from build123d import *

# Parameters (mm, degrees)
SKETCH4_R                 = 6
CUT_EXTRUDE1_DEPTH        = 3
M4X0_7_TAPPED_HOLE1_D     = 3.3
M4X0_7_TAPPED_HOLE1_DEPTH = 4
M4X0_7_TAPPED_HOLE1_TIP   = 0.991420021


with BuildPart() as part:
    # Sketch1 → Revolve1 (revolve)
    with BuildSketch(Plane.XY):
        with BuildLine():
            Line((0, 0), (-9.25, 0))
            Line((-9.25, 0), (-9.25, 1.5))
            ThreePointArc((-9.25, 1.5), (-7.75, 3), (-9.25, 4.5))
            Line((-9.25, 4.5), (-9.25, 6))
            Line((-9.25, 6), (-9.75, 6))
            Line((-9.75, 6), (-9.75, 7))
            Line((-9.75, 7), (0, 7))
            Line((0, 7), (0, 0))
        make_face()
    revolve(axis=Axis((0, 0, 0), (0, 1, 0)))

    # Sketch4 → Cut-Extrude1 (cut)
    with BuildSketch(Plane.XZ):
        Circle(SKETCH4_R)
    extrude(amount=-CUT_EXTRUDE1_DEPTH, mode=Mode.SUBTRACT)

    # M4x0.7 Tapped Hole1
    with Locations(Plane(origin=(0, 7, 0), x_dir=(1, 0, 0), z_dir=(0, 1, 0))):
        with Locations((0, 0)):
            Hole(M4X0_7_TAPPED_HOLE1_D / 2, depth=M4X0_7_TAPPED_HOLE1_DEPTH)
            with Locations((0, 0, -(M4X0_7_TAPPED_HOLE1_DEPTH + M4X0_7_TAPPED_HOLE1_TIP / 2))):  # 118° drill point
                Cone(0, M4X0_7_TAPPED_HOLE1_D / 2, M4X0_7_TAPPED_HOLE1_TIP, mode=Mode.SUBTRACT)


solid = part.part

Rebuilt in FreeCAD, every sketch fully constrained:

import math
import FreeCAD as App
import Part
import Sketcher

doc = App.newDocument("Part")
params = doc.addObject("Spreadsheet::Sheet", "Params")
for row, (alias, value) in enumerate([
    ("sketch1_radius", "1.5 mm"),
    ("sketch1_height", "7 mm"),
    ("sketch1_height2", "1 mm"),
    ("sketch1_width", "0.5 mm"),
    ("sketch1_width2", "9.25 mm"),
    ("revolution_angle", "360 deg"),
    ("sketch2_diameter", "12 mm"),
    ("pocket1_length", "3 mm"),
    ("sketch3_diameter", "3.3 mm"),
    ("hole_diameter", "3.3 mm"),
    ("hole_depth", "4 mm"),
], start=1):
    params.set(f"A{row}", alias)
    params.set(f"B{row}", "=" + value)
    params.setAlias(f"B{row}", alias)

body = doc.addObject("PartDesign::Body", "Body")

# Sketch on XY plane
sketch1 = doc.addObject("Sketcher::SketchObject", "Sketch")
body.addObject(sketch1)
sketch1.AttachmentSupport = (doc.XY_Plane, [""])
sketch1.MapMode = "FlatFace"
sketch1.addGeometry(Part.LineSegment(App.Vector(-9.25, 0, 0), App.Vector(0, 0, 0)), False)
sketch1.addGeometry(Part.LineSegment(App.Vector(0, 0, 0), App.Vector(0, 7, 0)), False)
sketch1.addGeometry(Part.LineSegment(App.Vector(0, 7, 0), App.Vector(-9.75, 7, 0)), False)
sketch1.addGeometry(Part.LineSegment(App.Vector(-9.75, 7, 0), App.Vector(-9.75, 6, 0)), False)
sketch1.addGeometry(Part.LineSegment(App.Vector(-9.75, 6, 0), App.Vector(-9.25, 6, 0)), False)
sketch1.addGeometry(Part.LineSegment(App.Vector(-9.25, 6, 0), App.Vector(-9.25, 4.5, 0)), False)
sketch1.addGeometry(Part.ArcOfCircle(Part.Circle(App.Vector(-9.25, 3, 0), App.Vector(0, 0, 1), 1.5), math.radians(-90), math.radians(90)), False)
sketch1.addGeometry(Part.LineSegment(App.Vector(-9.25, 1.5, 0), App.Vector(-9.25, 0, 0)), False)
sketch1.addConstraint(Sketcher.Constraint("Coincident", 0, 2, 1, 1))
sketch1.addConstraint(Sketcher.Constraint("Coincident", 1, 2, 2, 1))
sketch1.addConstraint(Sketcher.Constraint("Coincident", 2, 2, 3, 1))
sketch1.addConstraint(Sketcher.Constraint("Coincident", 3, 2, 4, 1))
sketch1.addConstraint(Sketcher.Constraint("Coincident", 4, 2, 5, 1))
sketch1.addConstraint(Sketcher.Constraint("Coincident", 5, 2, 6, 2))
sketch1.addConstraint(Sketcher.Constraint("Coincident", 6, 1, 7, 1))
sketch1.addConstraint(Sketcher.Constraint("Coincident", 7, 2, 0, 1))
sketch1.addConstraint(Sketcher.Constraint("Horizontal", 0))
sketch1.addConstraint(Sketcher.Constraint("Vertical", 1))
sketch1.addConstraint(Sketcher.Constraint("Horizontal", 2))
sketch1.addConstraint(Sketcher.Constraint("Vertical", 3))
sketch1.addConstraint(Sketcher.Constraint("Horizontal", 4))
sketch1.addConstraint(Sketcher.Constraint("Vertical", 5))
sketch1.addConstraint(Sketcher.Constraint("Vertical", 7))
sketch1.addConstraint(Sketcher.Constraint("Coincident", 0, 2, -1, 1))
sketch1.addConstraint(Sketcher.Constraint("Vertical", 6, 3, 4, 2))
sketch1.addConstraint(Sketcher.Constraint("Vertical", 5, 2, 6, 1))
sketch1.addConstraint(Sketcher.Constraint("Equal", 5, 7))
sketch1.addConstraint(Sketcher.Constraint("Radius", 6, 1.5))
sketch1.addConstraint(Sketcher.Constraint("DistanceY", 1, 1, 1, 2, 7.0))
sketch1.addConstraint(Sketcher.Constraint("DistanceY", 3, 2, 3, 1, 1.0))
sketch1.addConstraint(Sketcher.Constraint("DistanceX", 4, 1, 4, 2, 0.5))
sketch1.addConstraint(Sketcher.Constraint("DistanceX", 0, 1, 0, 2, 9.25))
sketch1.setExpression("Constraints[19]", "Params.sketch1_radius")
sketch1.setExpression("Constraints[20]", "Params.sketch1_height")
sketch1.setExpression("Constraints[21]", "Params.sketch1_height2")
sketch1.setExpression("Constraints[22]", "Params.sketch1_width")
sketch1.setExpression("Constraints[23]", "Params.sketch1_width2")
revolution = doc.addObject("PartDesign::Revolution", "Revolution")
body.addObject(revolution)
revolution.Profile = sketch1
revolution.ReferenceAxis = (sketch1, ["V_Axis"])
revolution.setExpression("Angle", "Params.revolution_angle")

# Sketch on XZ plane
sketch2 = doc.addObject("Sketcher::SketchObject", "Sketch001")
body.addObject(sketch2)
sketch2.AttachmentSupport = (doc.XZ_Plane, [""])
sketch2.MapMode = "FlatFace"
sketch2.addGeometry(Part.Circle(App.Vector(0, 0, 0), App.Vector(0, 0, 1), 6), False)
sketch2.addConstraint(Sketcher.Constraint("Coincident", 0, 3, -1, 1))
sketch2.addConstraint(Sketcher.Constraint("Diameter", 0, 12.0))
sketch2.setExpression("Constraints[1]", "Params.sketch2_diameter")
pocket1 = doc.addObject("PartDesign::Pocket", "Pocket")
body.addObject(pocket1)
pocket1.Profile = sketch2
pocket1.setExpression("Length", "Params.pocket1_length")

# Sketch on XZ plane
sketch3 = doc.addObject("Sketcher::SketchObject", "Sketch002")
body.addObject(sketch3)
sketch3.AttachmentSupport = (doc.XZ_Plane, [""])
sketch3.MapMode = "FlatFace"
sketch3.AttachmentOffset = App.Placement(App.Vector(0, 0, -7), App.Rotation())
sketch3.addGeometry(Part.Circle(App.Vector(0, 0, 0), App.Vector(0, 0, 1), 1.65), False)
sketch3.addConstraint(Sketcher.Constraint("Coincident", 0, 3, -1, 1))
sketch3.addConstraint(Sketcher.Constraint("Diameter", 0, 3.3))
sketch3.setExpression("Constraints[1]", "Params.sketch3_diameter")
doc.recompute()
hole = doc.addObject("PartDesign::Hole", "Hole")
body.addObject(hole)
hole.Profile = sketch3
hole.ThreadType = "None"
hole.setExpression("Diameter", "Params.hole_diameter")
hole.DepthType = "Dimension"
hole.setExpression("Depth", "Params.hole_depth")
hole.DrillPoint = "Angled"
hole.DrillPointAngle = 118
hole.Reversed = True

doc.recompute()
